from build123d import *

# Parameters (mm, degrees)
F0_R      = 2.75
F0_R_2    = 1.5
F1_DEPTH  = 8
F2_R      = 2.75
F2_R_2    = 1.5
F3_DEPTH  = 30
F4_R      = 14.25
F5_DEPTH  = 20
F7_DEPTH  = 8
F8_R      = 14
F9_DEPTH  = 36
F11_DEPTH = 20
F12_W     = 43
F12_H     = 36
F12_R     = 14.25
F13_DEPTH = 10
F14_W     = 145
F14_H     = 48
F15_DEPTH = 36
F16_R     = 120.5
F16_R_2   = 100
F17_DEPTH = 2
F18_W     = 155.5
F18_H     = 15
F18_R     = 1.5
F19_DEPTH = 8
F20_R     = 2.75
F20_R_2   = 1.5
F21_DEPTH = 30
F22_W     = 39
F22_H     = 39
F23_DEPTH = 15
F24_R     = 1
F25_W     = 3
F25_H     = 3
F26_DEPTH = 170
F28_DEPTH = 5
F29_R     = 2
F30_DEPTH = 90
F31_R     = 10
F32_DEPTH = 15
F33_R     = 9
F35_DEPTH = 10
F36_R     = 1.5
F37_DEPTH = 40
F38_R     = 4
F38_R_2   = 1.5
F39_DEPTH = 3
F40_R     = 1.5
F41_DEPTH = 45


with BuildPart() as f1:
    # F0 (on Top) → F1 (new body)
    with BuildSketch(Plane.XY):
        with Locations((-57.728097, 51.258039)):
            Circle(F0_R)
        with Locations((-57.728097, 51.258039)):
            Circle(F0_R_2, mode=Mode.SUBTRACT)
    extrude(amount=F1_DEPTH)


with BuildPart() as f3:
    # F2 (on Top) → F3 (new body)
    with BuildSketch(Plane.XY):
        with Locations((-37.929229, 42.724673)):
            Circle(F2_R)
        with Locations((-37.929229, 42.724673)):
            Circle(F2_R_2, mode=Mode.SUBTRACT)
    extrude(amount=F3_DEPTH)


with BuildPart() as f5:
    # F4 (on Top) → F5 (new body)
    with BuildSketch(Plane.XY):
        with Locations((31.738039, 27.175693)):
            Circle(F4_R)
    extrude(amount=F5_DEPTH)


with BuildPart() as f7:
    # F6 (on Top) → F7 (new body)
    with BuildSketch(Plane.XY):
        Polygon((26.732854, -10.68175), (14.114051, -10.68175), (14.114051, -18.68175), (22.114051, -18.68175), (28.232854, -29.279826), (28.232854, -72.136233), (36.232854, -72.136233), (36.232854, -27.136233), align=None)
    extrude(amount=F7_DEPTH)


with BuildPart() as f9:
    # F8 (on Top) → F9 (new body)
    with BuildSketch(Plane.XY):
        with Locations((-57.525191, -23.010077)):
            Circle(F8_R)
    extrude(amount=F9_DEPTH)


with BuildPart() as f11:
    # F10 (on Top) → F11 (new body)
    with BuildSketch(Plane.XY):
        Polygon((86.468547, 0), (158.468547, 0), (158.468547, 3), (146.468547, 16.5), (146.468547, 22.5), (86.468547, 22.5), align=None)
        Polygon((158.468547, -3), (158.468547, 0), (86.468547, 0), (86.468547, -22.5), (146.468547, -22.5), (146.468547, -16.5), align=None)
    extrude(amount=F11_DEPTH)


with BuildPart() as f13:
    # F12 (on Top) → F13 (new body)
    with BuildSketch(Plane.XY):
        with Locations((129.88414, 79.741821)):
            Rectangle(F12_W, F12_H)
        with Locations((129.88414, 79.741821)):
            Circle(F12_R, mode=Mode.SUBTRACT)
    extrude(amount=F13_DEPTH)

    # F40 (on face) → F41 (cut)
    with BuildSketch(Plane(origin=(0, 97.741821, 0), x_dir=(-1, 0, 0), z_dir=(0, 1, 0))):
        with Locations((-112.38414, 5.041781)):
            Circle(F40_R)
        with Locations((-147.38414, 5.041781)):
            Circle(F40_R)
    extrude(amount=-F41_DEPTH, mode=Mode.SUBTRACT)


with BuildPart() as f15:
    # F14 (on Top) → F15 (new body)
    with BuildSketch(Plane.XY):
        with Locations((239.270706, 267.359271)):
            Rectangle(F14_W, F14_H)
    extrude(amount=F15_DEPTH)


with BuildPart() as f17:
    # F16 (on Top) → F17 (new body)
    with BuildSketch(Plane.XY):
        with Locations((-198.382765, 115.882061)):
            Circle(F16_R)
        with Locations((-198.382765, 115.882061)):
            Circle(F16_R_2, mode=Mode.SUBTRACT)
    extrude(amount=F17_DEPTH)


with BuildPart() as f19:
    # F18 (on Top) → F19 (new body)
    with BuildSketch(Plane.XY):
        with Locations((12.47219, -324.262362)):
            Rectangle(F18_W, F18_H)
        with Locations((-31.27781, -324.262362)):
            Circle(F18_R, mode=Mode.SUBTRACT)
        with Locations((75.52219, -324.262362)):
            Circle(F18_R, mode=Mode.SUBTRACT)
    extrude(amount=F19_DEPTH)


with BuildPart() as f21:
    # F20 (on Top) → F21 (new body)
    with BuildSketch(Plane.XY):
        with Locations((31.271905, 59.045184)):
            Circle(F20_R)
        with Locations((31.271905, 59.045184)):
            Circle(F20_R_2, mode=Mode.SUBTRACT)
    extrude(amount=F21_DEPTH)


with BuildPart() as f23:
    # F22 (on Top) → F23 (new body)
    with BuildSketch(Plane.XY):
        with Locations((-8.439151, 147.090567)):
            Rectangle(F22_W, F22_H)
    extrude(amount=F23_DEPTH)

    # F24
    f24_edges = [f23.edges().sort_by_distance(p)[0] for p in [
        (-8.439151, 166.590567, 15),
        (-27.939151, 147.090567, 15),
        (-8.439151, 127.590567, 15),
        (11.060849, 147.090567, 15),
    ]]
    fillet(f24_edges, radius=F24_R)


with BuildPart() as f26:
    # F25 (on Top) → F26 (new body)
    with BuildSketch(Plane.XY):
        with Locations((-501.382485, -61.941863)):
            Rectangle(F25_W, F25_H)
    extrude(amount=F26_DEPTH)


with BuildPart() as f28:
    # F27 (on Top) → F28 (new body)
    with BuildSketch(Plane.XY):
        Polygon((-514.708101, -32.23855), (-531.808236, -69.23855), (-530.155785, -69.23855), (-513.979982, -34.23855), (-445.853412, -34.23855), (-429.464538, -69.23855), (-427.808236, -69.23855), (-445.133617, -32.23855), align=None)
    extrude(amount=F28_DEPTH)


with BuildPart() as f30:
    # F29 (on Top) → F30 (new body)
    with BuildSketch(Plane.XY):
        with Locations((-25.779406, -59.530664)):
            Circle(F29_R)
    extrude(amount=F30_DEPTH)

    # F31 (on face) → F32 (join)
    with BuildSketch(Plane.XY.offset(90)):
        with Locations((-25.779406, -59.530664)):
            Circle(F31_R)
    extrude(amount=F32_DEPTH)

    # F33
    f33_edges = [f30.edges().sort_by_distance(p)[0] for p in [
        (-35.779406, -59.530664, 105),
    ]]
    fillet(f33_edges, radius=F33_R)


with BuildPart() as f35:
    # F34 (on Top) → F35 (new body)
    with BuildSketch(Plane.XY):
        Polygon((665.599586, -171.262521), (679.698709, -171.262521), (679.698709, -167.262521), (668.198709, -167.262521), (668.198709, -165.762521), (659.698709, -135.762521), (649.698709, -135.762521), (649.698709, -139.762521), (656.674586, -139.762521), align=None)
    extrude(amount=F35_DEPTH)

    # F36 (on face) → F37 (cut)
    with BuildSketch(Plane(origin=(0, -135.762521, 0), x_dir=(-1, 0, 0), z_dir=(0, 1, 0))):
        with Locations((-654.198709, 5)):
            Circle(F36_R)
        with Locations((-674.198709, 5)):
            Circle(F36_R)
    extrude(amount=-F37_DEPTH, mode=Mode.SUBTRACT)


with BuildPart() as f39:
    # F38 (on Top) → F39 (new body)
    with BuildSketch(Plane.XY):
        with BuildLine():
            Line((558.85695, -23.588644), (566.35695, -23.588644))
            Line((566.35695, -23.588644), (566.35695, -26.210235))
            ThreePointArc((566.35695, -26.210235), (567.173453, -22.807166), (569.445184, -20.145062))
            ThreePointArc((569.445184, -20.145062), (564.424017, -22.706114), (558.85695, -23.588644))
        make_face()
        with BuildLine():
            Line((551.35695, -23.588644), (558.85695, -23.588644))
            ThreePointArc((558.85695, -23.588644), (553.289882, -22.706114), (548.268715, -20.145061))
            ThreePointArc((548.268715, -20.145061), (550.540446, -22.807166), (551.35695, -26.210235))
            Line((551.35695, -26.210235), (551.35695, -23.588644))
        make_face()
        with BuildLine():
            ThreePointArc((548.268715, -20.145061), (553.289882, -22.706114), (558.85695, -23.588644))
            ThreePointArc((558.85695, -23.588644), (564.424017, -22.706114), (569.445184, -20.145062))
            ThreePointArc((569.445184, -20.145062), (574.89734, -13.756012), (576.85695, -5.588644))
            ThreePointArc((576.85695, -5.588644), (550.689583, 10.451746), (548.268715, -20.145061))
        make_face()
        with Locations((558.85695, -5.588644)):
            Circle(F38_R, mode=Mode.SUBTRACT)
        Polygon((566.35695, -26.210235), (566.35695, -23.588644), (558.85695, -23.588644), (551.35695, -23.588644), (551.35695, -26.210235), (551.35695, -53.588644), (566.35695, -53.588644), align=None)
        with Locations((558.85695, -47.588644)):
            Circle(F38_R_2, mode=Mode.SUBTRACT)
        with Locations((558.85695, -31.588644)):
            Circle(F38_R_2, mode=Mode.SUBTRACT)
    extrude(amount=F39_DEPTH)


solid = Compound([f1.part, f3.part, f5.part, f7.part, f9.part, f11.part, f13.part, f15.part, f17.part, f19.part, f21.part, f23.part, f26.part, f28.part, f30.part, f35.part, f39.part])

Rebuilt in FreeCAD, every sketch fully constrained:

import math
import FreeCAD as App
import Part
import Sketcher
Q = App.Units.Quantity


def edges_at(feature, points):
    """Names of the edges that pass closest to the given points."""
    edges = feature.Shape.Edges
    near = lambda p: min(range(len(edges)), key=lambda i: edges[i].distToShape(Part.Vertex(*p))[0])
    return sorted({f"Edge{near(p) + 1}" for p in points})

doc = App.newDocument("Part")
body = doc.addObject("PartDesign::Body", "Body")

# Sketch on XY plane
sketch1 = doc.addObject("Sketcher::SketchObject", "Sketch")
body.addObject(sketch1)
sketch1.AttachmentSupport = (doc.XY_Plane, [""])
sketch1.MapMode = "FlatFace"
sketch1.addGeometry(Part.Circle(App.Vector(-57.7, 51.3, 0), App.Vector(0, 0, 1), 2.8), False)
sketch1.addGeometry(Part.Circle(App.Vector(-57.7, 51.3, 0), App.Vector(0, 0, 1), 1.5), False)
sketch1.addConstraint(Sketcher.Constraint("Coincident", 1, 3, 0, 3))
sketch1.addConstraint(Sketcher.Constraint("Diameter", 1, 3.0))
sketch1.addConstraint(Sketcher.Constraint("Diameter", 0, 5.5))
sketch1.addConstraint(Sketcher.Constraint("DistanceY", -1, 1, 0, 3, 51.258039))
sketch1.addConstraint(Sketcher.Constraint("DistanceX", 0, 3, -1, 1, 57.728097))
pad1 = doc.addObject("PartDesign::Pad", "Pad")
body.addObject(pad1)
pad1.Profile = sketch1
pad1.Length = 8
body2 = doc.addObject("PartDesign::Body", "Body001")

# Sketch on XY plane
sketch2 = doc.addObject("Sketcher::SketchObject", "Sketch001")
body2.addObject(sketch2)
sketch2.AttachmentSupport = (doc.getObject("XY_Plane001"), [""])
sketch2.MapMode = "FlatFace"
sketch2.addGeometry(Part.Circle(App.Vector(-37.9, 42.7, 0), App.Vector(0, 0, 1), 2.8), False)
sketch2.addGeometry(Part.Circle(App.Vector(-37.9, 42.7, 0), App.Vector(0, 0, 1), 1.5), False)
sketch2.addConstraint(Sketcher.Constraint("Coincident", 1, 3, 0, 3))
sketch2.addConstraint(Sketcher.Constraint("Diameter", 1, 3.0))
sketch2.addConstraint(Sketcher.Constraint("Diameter", 0, 5.5))
sketch2.addConstraint(Sketcher.Constraint("DistanceX", 0, 3, -1, 1, 37.929229))
sketch2.addConstraint(Sketcher.Constraint("DistanceY", -1, 1, 0, 3, 42.724673))
pad2 = doc.addObject("PartDesign::Pad", "Pad001")
body2.addObject(pad2)
pad2.Profile = sketch2
pad2.Length = 30
body3 = doc.addObject("PartDesign::Body", "Body002")

# Sketch on XY plane
sketch3 = doc.addObject("Sketcher::SketchObject", "Sketch002")
body3.addObject(sketch3)
sketch3.AttachmentSupport = (doc.getObject("XY_Plane002"), [""])
sketch3.MapMode = "FlatFace"
sketch3.addGeometry(Part.Circle(App.Vector(32, 27, 0), App.Vector(0, 0, 1), 14), False)
sketch3.addConstraint(Sketcher.Constraint("Diameter", 0, 28.5))
sketch3.addConstraint(Sketcher.Constraint("DistanceX", -1, 1, 0, 3, 31.738039))
sketch3.addConstraint(Sketcher.Constraint("DistanceY", -1, 1, 0, 3, 27.175693))
pad3 = doc.addObject("PartDesign::Pad", "Pad002")
body3.addObject(pad3)
pad3.Profile = sketch3
pad3.Length = 20
body4 = doc.addObject("PartDesign::Body", "Body003")

# Sketch on XY plane
sketch4 = doc.addObject("Sketcher::SketchObject", "Sketch003")
body4.addObject(sketch4)
sketch4.AttachmentSupport = (doc.getObject("XY_Plane003"), [""])
sketch4.MapMode = "FlatFace"
sketch4.addGeometry(Part.LineSegment(App.Vector(27, -11, 0), App.Vector(14, -11, 0)), False)
sketch4.addGeometry(Part.LineSegment(App.Vector(14, -11, 0), App.Vector(14, -19, 0)), False)
sketch4.addGeometry(Part.LineSegment(App.Vector(14, -19, 0), App.Vector(22, -19, 0)), False)
sketch4.addGeometry(Part.LineSegment(App.Vector(22, -19, 0), App.Vector(28, -29, 0)), False)
sketch4.addGeometry(Part.LineSegment(App.Vector(28, -29, 0), App.Vector(28, -72, 0)), False)
sketch4.addGeometry(Part.LineSegment(App.Vector(28, -72, 0), App.Vector(36, -72, 0)), False)
sketch4.addGeometry(Part.LineSegment(App.Vector(36, -72, 0), App.Vector(36, -27, 0)), False)
sketch4.addGeometry(Part.LineSegment(App.Vector(36, -27, 0), App.Vector(27, -11, 0)), False)
sketch4.addConstraint(Sketcher.Constraint("Coincident", 0, 2, 1, 1))
sketch4.addConstraint(Sketcher.Constraint("Coincident", 1, 2, 2, 1))
sketch4.addConstraint(Sketcher.Constraint("Coincident", 2, 2, 3, 1))
sketch4.addConstraint(Sketcher.Constraint("Coincident", 3, 2, 4, 1))
sketch4.addConstraint(Sketcher.Constraint("Coincident", 4, 2, 5, 1))
sketch4.addConstraint(Sketcher.Constraint("Coincident", 5, 2, 6, 1))
sketch4.addConstraint(Sketcher.Constraint("Coincident", 6, 2, 7, 1))
sketch4.addConstraint(Sketcher.Constraint("Coincident", 7, 2, 0, 1))
sketch4.addConstraint(Sketcher.Constraint("Horizontal", 0))
sketch4.addConstraint(Sketcher.Constraint("Vertical", 1))
sketch4.addConstraint(Sketcher.Constraint("Horizontal", 2))
sketch4.addConstraint(Sketcher.Constraint("Vertical", 4))
sketch4.addConstraint(Sketcher.Constraint("Horizontal", 5))
sketch4.addConstraint(Sketcher.Constraint("Vertical", 6))
sketch4.addConstraint(Sketcher.Constraint("Parallel", 3, 7))
sketch4.addConstraint(Sketcher.Constraint("Equal", 2, 5))
sketch4.addConstraint(Sketcher.Constraint("Equal", 5, 1))
sketch4.addConstraint(Sketcher.Constraint("DistanceX", 2, 1, 2, 2, 8.0))
sketch4.addConstraint(Sketcher.Constraint("DistanceY", 6, 1, 6, 2, 45.0))
sketch4.addConstraint(Sketcher.Constraint("Angle", 3, Q("-59.999996 deg")))
sketch4.addConstraint(Sketcher.Constraint("Distance", 7, 19.0))
sketch4.addConstraint(Sketcher.Constraint("DistanceX", 0, 2, 0, 1, 12.618803))
sketch4.addConstraint(Sketcher.Constraint("DistanceX", -1, 1, 0, 2, 14.114051))
sketch4.addConstraint(Sketcher.Constraint("DistanceY", 0, 2, -1, 1, 10.68175))
pad4 = doc.addObject("PartDesign::Pad", "Pad003")
body4.addObject(pad4)
pad4.Profile = sketch4
pad4.Length = 8
body5 = doc.addObject("PartDesign::Body", "Body004")

# Sketch on XY plane
sketch5 = doc.addObject("Sketcher::SketchObject", "Sketch004")
body5.addObject(sketch5)
sketch5.AttachmentSupport = (doc.getObject("XY_Plane004"), [""])
sketch5.MapMode = "FlatFace"
sketch5.addGeometry(Part.Circle(App.Vector(-58, -23, 0), App.Vector(0, 0, 1), 14), False)
sketch5.addConstraint(Sketcher.Constraint("Diameter", 0, 28.0))
sketch5.addConstraint(Sketcher.Constraint("DistanceX", 0, 3, -1, 1, 57.525191))
sketch5.addConstraint(Sketcher.Constraint("DistanceY", 0, 3, -1, 1, 23.010077))
pad5 = doc.addObject("PartDesign::Pad", "Pad004")
body5.addObject(pad5)
pad5.Profile = sketch5
pad5.Length = 36
body6 = doc.addObject("PartDesign::Body", "Body005")

# Sketch on XY plane
sketch6 = doc.addObject("Sketcher::SketchObject", "Sketch005")
body6.addObject(sketch6)
sketch6.AttachmentSupport = (doc.getObject("XY_Plane005"), [""])
sketch6.MapMode = "FlatFace"
sketch6.addGeometry(Part.LineSegment(App.Vector(158, 3, 0), App.Vector(146, 16, 0)), False)
sketch6.addGeometry(Part.LineSegment(App.Vector(146, 16, 0), App.Vector(146, 22, 0)), False)
sketch6.addGeometry(Part.LineSegment(App.Vector(146, 22, 0), App.Vector(86, 22, 0)), False)
sketch6.addGeometry(Part.LineSegment(App.Vector(86, 22, 0), App.Vector(86, -22, 0)), False)
sketch6.addGeometry(Part.LineSegment(App.Vector(86, -22, 0), App.Vector(146, -22, 0)), False)
sketch6.addGeometry(Part.LineSegment(App.Vector(146, -22, 0), App.Vector(146, -16, 0)), False)
sketch6.addGeometry(Part.LineSegment(App.Vector(146, -16, 0), App.Vector(158, -3, 0)), False)
sketch6.addGeometry(Part.LineSegment(App.Vector(158, -3, 0), App.Vector(158, 3, 0)), False)
sketch6.addConstraint(Sketcher.Constraint("Coincident", 0, 2, 1, 1))
sketch6.addConstraint(Sketcher.Constraint("Coincident", 1, 2, 2, 1))
sketch6.addConstraint(Sketcher.Constraint("Coincident", 2, 2, 3, 1))
sketch6.addConstraint(Sketcher.Constraint("Coincident", 3, 2, 4, 1))
sketch6.addConstraint(Sketcher.Constraint("Coincident", 4, 2, 5, 1))
sketch6.addConstraint(Sketcher.Constraint("Coincident", 5, 2, 6, 1))
sketch6.addConstraint(Sketcher.Constraint("Coincident", 6, 2, 7, 1))
sketch6.addConstraint(Sketcher.Constraint("Coincident", 7, 2, 0, 1))
sketch6.addConstraint(Sketcher.Constraint("Vertical", 1))
sketch6.addConstraint(Sketcher.Constraint("Horizontal", 2))
sketch6.addConstraint(Sketcher.Constraint("Vertical", 3))
sketch6.addConstraint(Sketcher.Constraint("Horizontal", 4))
sketch6.addConstraint(Sketcher.Constraint("Vertical", 5))
sketch6.addConstraint(Sketcher.Constraint("Vertical", 7))
sketch6.addConstraint(Sketcher.Constraint("Symmetric", 1, 2, 4, 2, -1))
sketch6.addConstraint(Sketcher.Constraint("Equal", 1, 5))
sketch6.addConstraint(Sketcher.Constraint("Equal", 5, 7))
sketch6.addConstraint(Sketcher.Constraint("Equal", 0, 6))
sketch6.addConstraint(Sketcher.Constraint("DistanceX", 2, 2, 2, 1, 60.0))
sketch6.addConstraint(Sketcher.Constraint("DistanceY", 1, 1, 1, 2, 6.0))
sketch6.addConstraint(Sketcher.Constraint("DistanceY", 3, 2, 3, 1, 45.0))
sketch6.addConstraint(Sketcher.Constraint("DistanceX", 5, 2, 6, 2, 12.0))
sketch6.addConstraint(Sketcher.Constraint("DistanceX", -1, 1, 0, 2, 146.468547))
pad6 = doc.addObject("PartDesign::Pad", "Pad005")
body6.addObject(pad6)
pad6.Profile = sketch6
pad6.Length = 20
body7 = doc.addObject("PartDesign::Body", "Body006")

# Sketch on XY plane
sketch7 = doc.addObject("Sketcher::SketchObject", "Sketch006")
body7.addObject(sketch7)
sketch7.AttachmentSupport = (doc.getObject("XY_Plane006"), [""])
sketch7.MapMode = "FlatFace"
sketch7.addGeometry(Part.LineSegment(App.Vector(108, 98, 0), App.Vector(108, 62, 0)), False)
sketch7.addGeometry(Part.LineSegment(App.Vector(108, 62, 0), App.Vector(151, 62, 0)), False)
sketch7.addGeometry(Part.LineSegment(App.Vector(151, 62, 0), App.Vector(151, 98, 0)), False)
sketch7.addGeometry(Part.LineSegment(App.Vector(151, 98, 0), App.Vector(108, 98, 0)), False)
sketch7.addGeometry(Part.Circle(App.Vector(130, 80, 0), App.Vector(0, 0, 1), 14), False)
sketch7.addConstraint(Sketcher.Constraint("Coincident", 0, 2, 1, 1))
sketch7.addConstraint(Sketcher.Constraint("Coincident", 1, 2, 2, 1))
sketch7.addConstraint(Sketcher.Constraint("Coincident", 2, 2, 3, 1))
sketch7.addConstraint(Sketcher.Constraint("Coincident", 3, 2, 0, 1))
sketch7.addConstraint(Sketcher.Constraint("Vertical", 0))
sketch7.addConstraint(Sketcher.Constraint("Horizontal", 1))
sketch7.addConstraint(Sketcher.Constraint("Vertical", 2))
sketch7.addConstraint(Sketcher.Constraint("Horizontal", 3))
sketch7.addConstraint(Sketcher.Constraint("Diameter", 4, 28.5))
sketch7.addConstraint(Sketcher.Constraint("DistanceX", 1, 1, 1, 2, 43.0))
sketch7.addConstraint(Sketcher.Constraint("DistanceY", 0, 2, 0, 1, 36.0))
sketch7.addConstraint(Sketcher.Constraint("DistanceY", 0, 2, 4, 3, 18.0))
sketch7.addConstraint(Sketcher.Constraint("DistanceX", 0, 2, 4, 3, 21.5))
sketch7.addConstraint(Sketcher.Constraint("DistanceX", -1, 1, 4, 3, 129.88414))
sketch7.addConstraint(Sketcher.Constraint("DistanceY", -1, 1, 4, 3, 79.741821))
pad7 = doc.addObject("PartDesign::Pad", "Pad006")
body7.addObject(pad7)
pad7.Profile = sketch7
pad7.Length = 10

# Sketch on XZ plane
sketch8 = doc.addObject("Sketcher::SketchObject", "Sketch007")
body7.addObject(sketch8)
sketch8.AttachmentSupport = (doc.getObject("XZ_Plane006"), [""])
sketch8.MapMode = "FlatFace"
sketch8.AttachmentOffset = App.Placement(App.Vector(0, 0, -97.741821), App.Rotation())
sketch8.addGeometry(Part.Circle(App.Vector(112.4, 5, 0), App.Vector(0, 0, 1), 1.5), False)
sketch8.addGeometry(Part.Circle(App.Vector(147.4, 5, 0), App.Vector(0, 0, 1), 1.5), False)
sketch8.addConstraint(Sketcher.Constraint("Equal", 0, 1))
sketch8.addConstraint(Sketcher.Constraint("Horizontal", 0, 3, 1, 3))
sketch8.addConstraint(Sketcher.Constraint("Diameter", 0, 3.0))
sketch8.addConstraint(Sketcher.Constraint("DistanceX", 0, 3, 1, 3, 35.0))
sketch8.addConstraint(Sketcher.Constraint("DistanceX", -1, 1, 0, 3, 112.38414))
sketch8.addConstraint(Sketcher.Constraint("DistanceY", -1, 1, 0, 3, 5.041781))
pocket1 = doc.addObject("PartDesign::Pocket", "Pocket")
body7.addObject(pocket1)
pocket1.Profile = sketch8
pocket1.Length = 45
pocket1.Reversed = True
body8 = doc.addObject("PartDesign::Body", "Body007")

# Sketch on XY plane
sketch9 = doc.addObject("Sketcher::SketchObject", "Sketch008")
body8.addObject(sketch9)
sketch9.AttachmentSupport = (doc.getObject("XY_Plane007"), [""])
sketch9.MapMode = "FlatFace"
sketch9.addGeometry(Part.LineSegment(App.Vector(167, 291, 0), App.Vector(167, 243, 0)), False)
sketch9.addGeometry(Part.LineSegment(App.Vector(167, 243, 0), App.Vector(312, 243, 0)), False)
sketch9.addGeometry(Part.LineSegment(App.Vector(312, 243, 0), App.Vector(312, 291, 0)), False)
sketch9.addGeometry(Part.LineSegment(App.Vector(312, 291, 0), App.Vector(167, 291, 0)), False)
sketch9.addConstraint(Sketcher.Constraint("Coincident", 0, 2, 1, 1))
sketch9.addConstraint(Sketcher.Constraint("Coincident", 1, 2, 2, 1))
sketch9.addConstraint(Sketcher.Constraint("Coincident", 2, 2, 3, 1))
sketch9.addConstraint(Sketcher.Constraint("Coincident", 3, 2, 0, 1))
sketch9.addConstraint(Sketcher.Constraint("Vertical", 0))
sketch9.addConstraint(Sketcher.Constraint("Horizontal", 1))
sketch9.addConstraint(Sketcher.Constraint("Vertical", 2))
sketch9.addConstraint(Sketcher.Constraint("Horizontal", 3))
sketch9.addConstraint(Sketcher.Constraint("DistanceX", 1, 1, 1, 2, 145.0))
sketch9.addConstraint(Sketcher.Constraint("DistanceY", 0, 2, 0, 1, 48.0))
sketch9.addConstraint(Sketcher.Constraint("DistanceY", -1, 1, 0, 2, 243.359271))
sketch9.addConstraint(Sketcher.Constraint("DistanceX", -1, 1, 0, 2, 166.770706))
pad8 = doc.addObject("PartDesign::Pad", "Pad007")
body8.addObject(pad8)
pad8.Profile = sketch9
pad8.Length = 36
body9 = doc.addObject("PartDesign::Body", "Body008")

# Sketch on XY plane
sketch10 = doc.addObject("Sketcher::SketchObject", "Sketch009")
body9.addObject(sketch10)
sketch10.AttachmentSupport = (doc.getObject("XY_Plane008"), [""])
sketch10.MapMode = "FlatFace"
sketch10.addGeometry(Part.Circle(App.Vector(-198, 116, 0), App.Vector(0, 0, 1), 120), False)
sketch10.addGeometry(Part.Circle(App.Vector(-198, 116, 0), App.Vector(0, 0, 1), 100), False)
sketch10.addConstraint(Sketcher.Constraint("Coincident", 1, 3, 0, 3))
sketch10.addConstraint(Sketcher.Constraint("Diameter", 0, 241.0))
sketch10.addConstraint(Sketcher.Constraint("Diameter", 1, 200.0))
sketch10.addConstraint(Sketcher.Constraint("DistanceY", -1, 1, 0, 3, 115.882061))
sketch10.addConstraint(Sketcher.Constraint("DistanceX", 0, 3, -1, 1, 198.382765))
pad9 = doc.addObject("PartDesign::Pad", "Pad008")
body9.addObject(pad9)
pad9.Profile = sketch10
pad9.Length = 2
body10 = doc.addObject("PartDesign::Body", "Body009")

# Sketch on XY plane
sketch11 = doc.addObject("Sketcher::SketchObject", "Sketch010")
body10.addObject(sketch11)
sketch11.AttachmentSupport = (doc.getObject("XY_Plane009"), [""])
sketch11.MapMode = "FlatFace"
sketch11.addGeometry(Part.LineSegment(App.Vector(-65.3, -316.8, 0), App.Vector(-65.3, -331.8, 0)), False)
sketch11.addGeometry(Part.LineSegment(App.Vector(-65.3, -331.8, 0), App.Vector(90.2, -331.8, 0)), False)
sketch11.addGeometry(Part.LineSegment(App.Vector(90.2, -331.8, 0), App.Vector(90.2, -316.8, 0)), False)
sketch11.addGeometry(Part.LineSegment(App.Vector(90.2, -316.8, 0), App.Vector(-65.3, -316.8, 0)), False)
sketch11.addGeometry(Part.Circle(App.Vector(-31.3, -324.3, 0), App.Vector(0, 0, 1), 1.5), False)
sketch11.addGeometry(Part.Circle(App.Vector(75.5, -324.3, 0), App.Vector(0, 0, 1), 1.5), False)
sketch11.addConstraint(Sketcher.Constraint("Coincident", 0, 2, 1, 1))
sketch11.addConstraint(Sketcher.Constraint("Coincident", 1, 2, 2, 1))
sketch11.addConstraint(Sketcher.Constraint("Coincident", 2, 2, 3, 1))
sketch11.addConstraint(Sketcher.Constraint("Coincident", 3, 2, 0, 1))
sketch11.addConstraint(Sketcher.Constraint("Vertical", 0))
sketch11.addConstraint(Sketcher.Constraint("Horizontal", 1))
sketch11.addConstraint(Sketcher.Constraint("Vertical", 2))
sketch11.addConstraint(Sketcher.Constraint("Horizontal", 3))
sketch11.addConstraint(Sketcher.Constraint("Equal", 4, 5))
sketch11.addConstraint(Sketcher.Constraint("Horizontal", 4, 3, 5, 3))
sketch11.addConstraint(Sketcher.Constraint("Diameter", 4, 3.0))
sketch11.addConstraint(Sketcher.Constraint("DistanceY", 0, 2, 0, 1, 15.0))
sketch11.addConstraint(Sketcher.Constraint("DistanceX", 1, 1, 1, 2, 155.5))
sketch11.addConstraint(Sketcher.Constraint("DistanceX", 0, 2, 4, 3, 34.0))
sketch11.addConstraint(Sketcher.Constraint("DistanceX", 4, 3, 5, 3, 106.8))
sketch11.addConstraint(Sketcher.Constraint("DistanceY", 0, 2, 4, 3, 7.5))
sketch11.addConstraint(Sketcher.Constraint("DistanceX", 4, 3, -1, 1, 31.27781))
sketch11.addConstraint(Sketcher.Constraint("DistanceY", 4, 3, -1, 1, 324.262362))
pad10 = doc.addObject("PartDesign::Pad", "Pad009")
body10.addObject(pad10)
pad10.Profile = sketch11
pad10.Length = 8
body11 = doc.addObject("PartDesign::Body", "Body010")

# Sketch on XY plane
sketch12 = doc.addObject("Sketcher::SketchObject", "Sketch011")
body11.addObject(sketch12)
sketch12.AttachmentSupport = (doc.getObject("XY_Plane010"), [""])
sketch12.MapMode = "FlatFace"
sketch12.addGeometry(Part.Circle(App.Vector(31.3, 59, 0), App.Vector(0, 0, 1), 2.8), False)
sketch12.addGeometry(Part.Circle(App.Vector(31.3, 59, 0), App.Vector(0, 0, 1), 1.5), False)
sketch12.addConstraint(Sketcher.Constraint("Coincident", 1, 3, 0, 3))
sketch12.addConstraint(Sketcher.Constraint("Diameter", 1, 3.0))
sketch12.addConstraint(Sketcher.Constraint("Diameter", 0, 5.5))
sketch12.addConstraint(Sketcher.Constraint("DistanceX", -1, 1, 0, 3, 31.271905))
sketch12.addConstraint(Sketcher.Constraint("DistanceY", -1, 1, 0, 3, 59.045184))
pad11 = doc.addObject("PartDesign::Pad", "Pad010")
body11.addObject(pad11)
pad11.Profile = sketch12
pad11.Length = 30
body12 = doc.addObject("PartDesign::Body", "Body011")

# Sketch on XY plane
sketch13 = doc.addObject("Sketcher::SketchObject", "Sketch012")
body12.addObject(sketch13)
sketch13.AttachmentSupport = (doc.getObject("XY_Plane011"), [""])
sketch13.MapMode = "FlatFace"
sketch13.addGeometry(Part.LineSegment(App.Vector(-28, 167, 0), App.Vector(-28, 128, 0)), False)
sketch13.addGeometry(Part.LineSegment(App.Vector(-28, 128, 0), App.Vector(11, 128, 0)), False)
sketch13.addGeometry(Part.LineSegment(App.Vector(11, 128, 0), App.Vector(11, 167, 0)), False)
sketch13.addGeometry(Part.LineSegment(App.Vector(11, 167, 0), App.Vector(-28, 167, 0)), False)
sketch13.addConstraint(Sketcher.Constraint("Coincident", 0, 2, 1, 1))
sketch13.addConstraint(Sketcher.Constraint("Coincident", 1, 2, 2, 1))
sketch13.addConstraint(Sketcher.Constraint("Coincident", 2, 2, 3, 1))
sketch13.addConstraint(Sketcher.Constraint("Coincident", 3, 2, 0, 1))
sketch13.addConstraint(Sketcher.Constraint("Vertical", 0))
sketch13.addConstraint(Sketcher.Constraint("Horizontal", 1))
sketch13.addConstraint(Sketcher.Constraint("Vertical", 2))
sketch13.addConstraint(Sketcher.Constraint("Horizontal", 3))
sketch13.addConstraint(Sketcher.Constraint("Equal", 3, 0))
sketch13.addConstraint(Sketcher.Constraint("DistanceX", 1, 1, 1, 2, 39.0))
sketch13.addConstraint(Sketcher.Constraint("DistanceX", 0, 2, -1, 1, 27.939151))
sketch13.addConstraint(Sketcher.Constraint("DistanceY", -1, 1, 0, 2, 127.590567))
pad12 = doc.addObject("PartDesign::Pad", "Pad011")
body12.addObject(pad12)
pad12.Profile = sketch13
pad12.Length = 15
doc.recompute()

fillet = doc.addObject("PartDesign::Fillet", "Fillet")
body12.addObject(fillet)
fillet.Base = (pad12, edges_at(pad12, [
    (-8.439, 166.591, 15),
    (-27.939, 147.091, 15),
    (-8.439, 127.591, 15),
    (11.061, 147.091, 15),
]))
fillet.Radius = 1
body13 = doc.addObject("PartDesign::Body", "Body012")

# Sketch on XY plane
sketch14 = doc.addObject("Sketcher::SketchObject", "Sketch013")
body13.addObject(sketch14)
sketch14.AttachmentSupport = (doc.getObject("XY_Plane012"), [""])
sketch14.MapMode = "FlatFace"
sketch14.addGeometry(Part.LineSegment(App.Vector(-502.9, -60.4, 0), App.Vector(-502.9, -63.4, 0)), False)
sketch14.addGeometry(Part.LineSegment(App.Vector(-502.9, -63.4, 0), App.Vector(-499.9, -63.4, 0)), False)
sketch14.addGeometry(Part.LineSegment(App.Vector(-499.9, -63.4, 0), App.Vector(-499.9, -60.4, 0)), False)
sketch14.addGeometry(Part.LineSegment(App.Vector(-499.9, -60.4, 0), App.Vector(-502.9, -60.4, 0)), False)
sketch14.addConstraint(Sketcher.Constraint("Coincident", 0, 2, 1, 1))
sketch14.addConstraint(Sketcher.Constraint("Coincident", 1, 2, 2, 1))
sketch14.addConstraint(Sketcher.Constraint("Coincident", 2, 2, 3, 1))
sketch14.addConstraint(Sketcher.Constraint("Coincident", 3, 2, 0, 1))
sketch14.addConstraint(Sketcher.Constraint("Vertical", 0))
sketch14.addConstraint(Sketcher.Constraint("Horizontal", 1))
sketch14.addConstraint(Sketcher.Constraint("Vertical", 2))
sketch14.addConstraint(Sketcher.Constraint("Horizontal", 3))
sketch14.addConstraint(Sketcher.Constraint("Equal", 3, 0))
sketch14.addConstraint(Sketcher.Constraint("DistanceX", 1, 1, 1, 2, 3.0))
sketch14.addConstraint(Sketcher.Constraint("DistanceX", 0, 2, -1, 1, 502.882485))
sketch14.addConstraint(Sketcher.Constraint("DistanceY", 0, 2, -1, 1, 63.441863))
pad13 = doc.addObject("PartDesign::Pad", "Pad012")
body13.addObject(pad13)
pad13.Profile = sketch14
pad13.Length = 170
body14 = doc.addObject("PartDesign::Body", "Body013")

# Sketch on XY plane
sketch15 = doc.addObject("Sketcher::SketchObject", "Sketch014")
body14.addObject(sketch15)
sketch15.AttachmentSupport = (doc.getObject("XY_Plane013"), [""])
sketch15.MapMode = "FlatFace"
sketch15.addGeometry(Part.LineSegment(App.Vector(-514.7, -32.2, 0), App.Vector(-531.8, -69.2, 0)), False)
sketch15.addGeometry(Part.LineSegment(App.Vector(-531.8, -69.2, 0), App.Vector(-530.2, -69.2, 0)), False)
sketch15.addGeometry(Part.LineSegment(App.Vector(-530.2, -69.2, 0), App.Vector(-514, -34.2, 0)), False)
sketch15.addGeometry(Part.LineSegment(App.Vector(-514, -34.2, 0), App.Vector(-445.9, -34.2, 0)), False)
sketch15.addGeometry(Part.LineSegment(App.Vector(-445.9, -34.2, 0), App.Vector(-429.5, -69.2, 0)), False)
sketch15.addGeometry(Part.LineSegment(App.Vector(-429.5, -69.2, 0), App.Vector(-427.8, -69.2, 0)), False)
sketch15.addGeometry(Part.LineSegment(App.Vector(-427.8, -69.2, 0), App.Vector(-445.1, -32.2, 0)), False)
sketch15.addGeometry(Part.LineSegment(App.Vector(-445.1, -32.2, 0), App.Vector(-514.7, -32.2, 0)), False)
sketch15.addConstraint(Sketcher.Constraint("Coincident", 0, 2, 1, 1))
sketch15.addConstraint(Sketcher.Constraint("Coincident", 1, 2, 2, 1))
sketch15.addConstraint(Sketcher.Constraint("Coincident", 2, 2, 3, 1))
sketch15.addConstraint(Sketcher.Constraint("Coincident", 3, 2, 4, 1))
sketch15.addConstraint(Sketcher.Constraint("Coincident", 4, 2, 5, 1))
sketch15.addConstraint(Sketcher.Constraint("Coincident", 5, 2, 6, 1))
sketch15.addConstraint(Sketcher.Constraint("Coincident", 6, 2, 7, 1))
sketch15.addConstraint(Sketcher.Constraint("Coincident", 7, 2, 0, 1))
sketch15.addConstraint(Sketcher.Constraint("Horizontal", 1))
sketch15.addConstraint(Sketcher.Constraint("Horizontal", 3))
sketch15.addConstraint(Sketcher.Constraint("Horizontal", 5))
sketch15.addConstraint(Sketcher.Constraint("Horizontal", 7))
sketch15.addConstraint(Sketcher.Constraint("Parallel", 0, 2))
sketch15.addConstraint(Sketcher.Constraint("Parallel", 4, 6))
sketch15.addConstraint(Sketcher.Constraint("Horizontal", 1, 2, 4, 2))
sketch15.addConstraint(Sketcher.Constraint("DistanceY", 1, 2, 2, 2, 35.0))
sketch15.addConstraint(Sketcher.Constraint("DistanceX", 0, 2, 5, 2, 104.0))
sketch15.addConstraint(Sketcher.Constraint("DistanceY", 3, 2, 6, 2, 2.0))
sketch15.addConstraint(Sketcher.Constraint("DistanceX", 5, 1, 5, 2, 1.656302))
sketch15.addConstraint(Sketcher.Constraint("DistanceX", 1, 1, 1, 2, 1.652451))
sketch15.addConstraint(Sketcher.Constraint("DistanceX", 3, 1, 3, 2, 68.12657))
sketch15.addConstraint(Sketcher.Constraint("DistanceX", 7, 2, -1, 1, 514.708101))
sketch15.addConstraint(Sketcher.Constraint("Distance", 4, 38.647059))
sketch15.addConstraint(Sketcher.Constraint("DistanceY", 0, 2, -1, 1, 69.23855))
pad14 = doc.addObject("PartDesign::Pad", "Pad013")
body14.addObject(pad14)
pad14.Profile = sketch15
pad14.Length = 5
body15 = doc.addObject("PartDesign::Body", "Body014")

# Sketch on XY plane
sketch16 = doc.addObject("Sketcher::SketchObject", "Sketch015")
body15.addObject(sketch16)
sketch16.AttachmentSupport = (doc.getObject("XY_Plane014"), [""])
sketch16.MapMode = "FlatFace"
sketch16.addGeometry(Part.Circle(App.Vector(-25.8, -59.5, 0), App.Vector(0, 0, 1), 2), False)
sketch16.addConstraint(Sketcher.Constraint("Diameter", 0, 4.0))
sketch16.addConstraint(Sketcher.Constraint("DistanceX", 0, 3, -1, 1, 25.779406))
sketch16.addConstraint(Sketcher.Constraint("DistanceY", 0, 3, -1, 1, 59.530664))
pad15 = doc.addObject("PartDesign::Pad", "Pad014")
body15.addObject(pad15)
pad15.Profile = sketch16
pad15.Length = 90

# Sketch on XY plane
sketch17 = doc.addObject("Sketcher::SketchObject", "Sketch016")
body15.addObject(sketch17)
sketch17.AttachmentSupport = (doc.getObject("XY_Plane014"), [""])
sketch17.MapMode = "FlatFace"
sketch17.AttachmentOffset = App.Placement(App.Vector(0, 0, 90), App.Rotation())
sketch17.addGeometry(Part.Circle(App.Vector(-26, -60, 0), App.Vector(0, 0, 1), 10), False)
sketch17.addConstraint(Sketcher.Constraint("Diameter", 0, 20.0))
sketch17.addConstraint(Sketcher.Constraint("DistanceX", 0, 3, -1, 1, 25.779406))
sketch17.addConstraint(Sketcher.Constraint("DistanceY", 0, 3, -1, 1, 59.530664))
pad16 = doc.addObject("PartDesign::Pad", "Pad015")
body15.addObject(pad16)
pad16.Profile = sketch17
pad16.Length = 15
doc.recompute()

fillet2 = doc.addObject("PartDesign::Fillet", "Fillet001")
body15.addObject(fillet2)
fillet2.Base = (pad16, edges_at(pad16, [(-35.779, -59.531, 105)]))
fillet2.Radius = 9
body16 = doc.addObject("PartDesign::Body", "Body015")

# Sketch on XY plane
sketch18 = doc.addObject("Sketcher::SketchObject", "Sketch017")
body16.addObject(sketch18)
sketch18.AttachmentSupport = (doc.getObject("XY_Plane015"), [""])
sketch18.MapMode = "FlatFace"
sketch18.addGeometry(Part.LineSegment(App.Vector(665.6, -171.3, 0), App.Vector(679.7, -171.3, 0)), False)
sketch18.addGeometry(Part.LineSegment(App.Vector(679.7, -171.3, 0), App.Vector(679.7, -167.3, 0)), False)
sketch18.addGeometry(Part.LineSegment(App.Vector(679.7, -167.3, 0), App.Vector(668.2, -167.3, 0)), False)
sketch18.addGeometry(Part.LineSegment(App.Vector(668.2, -167.3, 0), App.Vector(668.2, -165.8, 0)), False)
sketch18.addGeometry(Part.LineSegment(App.Vector(668.2, -165.8, 0), App.Vector(659.7, -135.8, 0)), False)
sketch18.addGeometry(Part.LineSegment(App.Vector(659.7, -135.8, 0), App.Vector(649.7, -135.8, 0)), False)
sketch18.addGeometry(Part.LineSegment(App.Vector(649.7, -135.8, 0), App.Vector(649.7, -139.8, 0)), False)
sketch18.addGeometry(Part.LineSegment(App.Vector(649.7, -139.8, 0), App.Vector(656.7, -139.8, 0)), False)
sketch18.addGeometry(Part.LineSegment(App.Vector(656.7, -139.8, 0), App.Vector(665.6, -171.3, 0)), False)
sketch18.addConstraint(Sketcher.Constraint("Coincident", 0, 2, 1, 1))
sketch18.addConstraint(Sketcher.Constraint("Coincident", 1, 2, 2, 1))
sketch18.addConstraint(Sketcher.Constraint("Coincident", 2, 2, 3, 1))
sketch18.addConstraint(Sketcher.Constraint("Coincident", 3, 2, 4, 1))
sketch18.addConstraint(Sketcher.Constraint("Coincident", 4, 2, 5, 1))
sketch18.addConstraint(Sketcher.Constraint("Coincident", 5, 2, 6, 1))
sketch18.addConstraint(Sketcher.Constraint("Coincident", 6, 2, 7, 1))
sketch18.addConstraint(Sketcher.Constraint("Coincident", 7, 2, 8, 1))
sketch18.addConstraint(Sketcher.Constraint("Coincident", 8, 2, 0, 1))
sketch18.addConstraint(Sketcher.Constraint("Horizontal", 0))
sketch18.addConstraint(Sketcher.Constraint("Vertical", 1))
sketch18.addConstraint(Sketcher.Constraint("Horizontal", 2))
sketch18.addConstraint(Sketcher.Constraint("Vertical", 3))
sketch18.addConstraint(Sketcher.Constraint("Horizontal", 5))
sketch18.addConstraint(Sketcher.Constraint("Vertical", 6))
sketch18.addConstraint(Sketcher.Constraint("Horizontal", 7))
sketch18.addConstraint(Sketcher.Constraint("Parallel", 4, 8))
sketch18.addConstraint(Sketcher.Constraint("Equal", 1, 6))
sketch18.addConstraint(Sketcher.Constraint("DistanceX", 5, 2, 5, 1, 10.0))
sketch18.addConstraint(Sketcher.Constraint("DistanceY", 1, 1, 1, 2, 4.0))
sketch18.addConstraint(Sketcher.Constraint("DistanceX", 2, 2, 2, 1, 11.5))
sketch18.addConstraint(Sketcher.Constraint("DistanceY", 3, 1, 3, 2, 1.5))
sketch18.addConstraint(Sketcher.Constraint("DistanceY", 3, 2, 4, 2, 30.0))
sketch18.addConstraint(Sketcher.Constraint("DistanceX", 4, 2, 1, 2, 20.0))
sketch18.addConstraint(Sketcher.Constraint("DistanceX", 0, 1, 0, 2, 14.099123))
sketch18.addConstraint(Sketcher.Constraint("DistanceX", -1, 1, 0, 2, 679.698709))
sketch18.addConstraint(Sketcher.Constraint("DistanceY", 0, 2, -1, 1, 171.262521))
pad17 = doc.addObject("PartDesign::Pad", "Pad016")
body16.addObject(pad17)
pad17.Profile = sketch18
pad17.Length = 10

# Sketch on XZ plane
sketch19 = doc.addObject("Sketcher::SketchObject", "Sketch018")
body16.addObject(sketch19)
sketch19.AttachmentSupport = (doc.getObject("XZ_Plane015"), [""])
sketch19.MapMode = "FlatFace"
sketch19.AttachmentOffset = App.Placement(App.Vector(0, 0, 135.762521), App.Rotation())
sketch19.addGeometry(Part.Circle(App.Vector(654.2, 5, 0), App.Vector(0, 0, 1), 1.5), False)
sketch19.addGeometry(Part.Circle(App.Vector(674.2, 5, 0), App.Vector(0, 0, 1), 1.5), False)
sketch19.addConstraint(Sketcher.Constraint("Equal", 0, 1))
sketch19.addConstraint(Sketcher.Constraint("Horizontal", 0, 3, 1, 3))
sketch19.addConstraint(Sketcher.Constraint("Diameter", 0, 3.0))
sketch19.addConstraint(Sketcher.Constraint("DistanceY", -1, 1, 0, 3, 5.0))
sketch19.addConstraint(Sketcher.Constraint("DistanceX", 0, 3, 1, 3, 20.0))
sketch19.addConstraint(Sketcher.Constraint("DistanceX", -1, 1, 0, 3, 654.198709))
pocket2 = doc.addObject("PartDesign::Pocket", "Pocket001")
body16.addObject(pocket2)
pocket2.Profile = sketch19
pocket2.Length = 40
pocket2.Reversed = True
body17 = doc.addObject("PartDesign::Body", "Body016")

# Sketch on XY plane
sketch20 = doc.addObject("Sketcher::SketchObject", "Sketch019")
body17.addObject(sketch20)
sketch20.AttachmentSupport = (doc.getObject("XY_Plane016"), [""])
sketch20.MapMode = "FlatFace"
sketch20.addGeometry(Part.ArcOfCircle(Part.Circle(App.Vector(573.9, -26.2, 0), App.Vector(0, 0, 1), 7.5), math.radians(126), math.radians(180)), False)
sketch20.addGeometry(Part.ArcOfCircle(Part.Circle(App.Vector(558.9, -5.6, 0), App.Vector(0, 0, 1), 18), math.radians(-54), math.radians(0)), False)
sketch20.addGeometry(Part.ArcOfCircle(Part.Circle(App.Vector(558.9, -5.6, 0), App.Vector(0, 0, 1), 18), math.radians(0), math.radians(234)), False)
sketch20.addGeometry(Part.ArcOfCircle(Part.Circle(App.Vector(543.9, -26.2, 0), App.Vector(0, 0, 1), 7.5), math.radians(0), math.radians(54)), False)
sketch20.addGeometry(Part.LineSegment(App.Vector(551.4, -26.2, 0), App.Vector(551.4, -53.6, 0)), False)
sketch20.addGeometry(Part.LineSegment(App.Vector(551.4, -53.6, 0), App.Vector(566.4, -53.6, 0)), False)
sketch20.addGeometry(Part.LineSegment(App.Vector(566.4, -53.6, 0), App.Vector(566.4, -26.2, 0)), False)
sketch20.addGeometry(Part.Circle(App.Vector(558.9, -47.6, 0), App.Vector(0, 0, 1), 1.5), False)
sketch20.addGeometry(Part.Circle(App.Vector(558.9, -31.6, 0), App.Vector(0, 0, 1), 1.5), False)
sketch20.addGeometry(Part.Circle(App.Vector(558.9, -5.6, 0), App.Vector(0, 0, 1), 4), False)
sketch20.addConstraint(Sketcher.Constraint("Tangent", 0, 1, 1, 1))
sketch20.addConstraint(Sketcher.Constraint("Tangent", 1, 2, 2, 1))
sketch20.addConstraint(Sketcher.Constraint("Tangent", 2, 2, 3, 2))
sketch20.addConstraint(Sketcher.Constraint("Tangent", 3, 1, 4, 1))
sketch20.addConstraint(Sketcher.Constraint("Coincident", 4, 2, 5, 1))
sketch20.addConstraint(Sketcher.Constraint("Coincident", 5, 2, 6, 1))
sketch20.addConstraint(Sketcher.Constraint("Tangent", 6, 2, 0, 2))
sketch20.addConstraint(Sketcher.Constraint("Vertical", 4))
sketch20.addConstraint(Sketcher.Constraint("Horizontal", 5))
sketch20.addConstraint(Sketcher.Constraint("Vertical", 6))
sketch20.addConstraint(Sketcher.Constraint("Coincident", 9, 3, 1, 3))
sketch20.addConstraint(Sketcher.Constraint("Equal", 1, 2))
sketch20.addConstraint(Sketcher.Constraint("Equal", 7, 8))
sketch20.addConstraint(Sketcher.Constraint("Horizontal", 9, 3, 1, 2))
sketch20.addConstraint(Sketcher.Constraint("Horizontal", 0, 1, 2, 2))
sketch20.addConstraint(Sketcher.Constraint("Horizontal", 3, 1, 6, 2))
sketch20.addConstraint(Sketcher.Constraint("Vertical", 2, 3, 7, 3))
sketch20.addConstraint(Sketcher.Constraint("Vertical", 7, 3, 8, 3))
sketch20.addConstraint(Sketcher.Constraint("Diameter", 7, 3.0))
sketch20.addConstraint(Sketcher.Constraint("Diameter", 9, 8.0))
sketch20.addConstraint(Sketcher.Constraint("Radius", 2, 18.0))
sketch20.addConstraint(Sketcher.Constraint("DistanceX", 5, 1, 5, 2, 15.0))
sketch20.addConstraint(Sketcher.Constraint("DistanceX", 3, 3, 0, 3, 29.999998))
sketch20.addConstraint(Sketcher.Constraint("DistanceY", 7, 3, 1, 3, 41.999999))
sketch20.addConstraint(Sketcher.Constraint("DistanceY", 7, 3, 8, 3, 16.0))
sketch20.addConstraint(Sketcher.Constraint("DistanceY", 4, 2, 7, 3, 6.0))
sketch20.addConstraint(Sketcher.Constraint("DistanceX", -1, 1, 2, 3, 558.85695))
sketch20.addConstraint(Sketcher.Constraint("DistanceY", 2, 2, -1, 1, 20.145061))
pad18 = doc.addObject("PartDesign::Pad", "Pad017")
body17.addObject(pad18)
pad18.Profile = sketch20
pad18.Length = 3

doc.recompute()
